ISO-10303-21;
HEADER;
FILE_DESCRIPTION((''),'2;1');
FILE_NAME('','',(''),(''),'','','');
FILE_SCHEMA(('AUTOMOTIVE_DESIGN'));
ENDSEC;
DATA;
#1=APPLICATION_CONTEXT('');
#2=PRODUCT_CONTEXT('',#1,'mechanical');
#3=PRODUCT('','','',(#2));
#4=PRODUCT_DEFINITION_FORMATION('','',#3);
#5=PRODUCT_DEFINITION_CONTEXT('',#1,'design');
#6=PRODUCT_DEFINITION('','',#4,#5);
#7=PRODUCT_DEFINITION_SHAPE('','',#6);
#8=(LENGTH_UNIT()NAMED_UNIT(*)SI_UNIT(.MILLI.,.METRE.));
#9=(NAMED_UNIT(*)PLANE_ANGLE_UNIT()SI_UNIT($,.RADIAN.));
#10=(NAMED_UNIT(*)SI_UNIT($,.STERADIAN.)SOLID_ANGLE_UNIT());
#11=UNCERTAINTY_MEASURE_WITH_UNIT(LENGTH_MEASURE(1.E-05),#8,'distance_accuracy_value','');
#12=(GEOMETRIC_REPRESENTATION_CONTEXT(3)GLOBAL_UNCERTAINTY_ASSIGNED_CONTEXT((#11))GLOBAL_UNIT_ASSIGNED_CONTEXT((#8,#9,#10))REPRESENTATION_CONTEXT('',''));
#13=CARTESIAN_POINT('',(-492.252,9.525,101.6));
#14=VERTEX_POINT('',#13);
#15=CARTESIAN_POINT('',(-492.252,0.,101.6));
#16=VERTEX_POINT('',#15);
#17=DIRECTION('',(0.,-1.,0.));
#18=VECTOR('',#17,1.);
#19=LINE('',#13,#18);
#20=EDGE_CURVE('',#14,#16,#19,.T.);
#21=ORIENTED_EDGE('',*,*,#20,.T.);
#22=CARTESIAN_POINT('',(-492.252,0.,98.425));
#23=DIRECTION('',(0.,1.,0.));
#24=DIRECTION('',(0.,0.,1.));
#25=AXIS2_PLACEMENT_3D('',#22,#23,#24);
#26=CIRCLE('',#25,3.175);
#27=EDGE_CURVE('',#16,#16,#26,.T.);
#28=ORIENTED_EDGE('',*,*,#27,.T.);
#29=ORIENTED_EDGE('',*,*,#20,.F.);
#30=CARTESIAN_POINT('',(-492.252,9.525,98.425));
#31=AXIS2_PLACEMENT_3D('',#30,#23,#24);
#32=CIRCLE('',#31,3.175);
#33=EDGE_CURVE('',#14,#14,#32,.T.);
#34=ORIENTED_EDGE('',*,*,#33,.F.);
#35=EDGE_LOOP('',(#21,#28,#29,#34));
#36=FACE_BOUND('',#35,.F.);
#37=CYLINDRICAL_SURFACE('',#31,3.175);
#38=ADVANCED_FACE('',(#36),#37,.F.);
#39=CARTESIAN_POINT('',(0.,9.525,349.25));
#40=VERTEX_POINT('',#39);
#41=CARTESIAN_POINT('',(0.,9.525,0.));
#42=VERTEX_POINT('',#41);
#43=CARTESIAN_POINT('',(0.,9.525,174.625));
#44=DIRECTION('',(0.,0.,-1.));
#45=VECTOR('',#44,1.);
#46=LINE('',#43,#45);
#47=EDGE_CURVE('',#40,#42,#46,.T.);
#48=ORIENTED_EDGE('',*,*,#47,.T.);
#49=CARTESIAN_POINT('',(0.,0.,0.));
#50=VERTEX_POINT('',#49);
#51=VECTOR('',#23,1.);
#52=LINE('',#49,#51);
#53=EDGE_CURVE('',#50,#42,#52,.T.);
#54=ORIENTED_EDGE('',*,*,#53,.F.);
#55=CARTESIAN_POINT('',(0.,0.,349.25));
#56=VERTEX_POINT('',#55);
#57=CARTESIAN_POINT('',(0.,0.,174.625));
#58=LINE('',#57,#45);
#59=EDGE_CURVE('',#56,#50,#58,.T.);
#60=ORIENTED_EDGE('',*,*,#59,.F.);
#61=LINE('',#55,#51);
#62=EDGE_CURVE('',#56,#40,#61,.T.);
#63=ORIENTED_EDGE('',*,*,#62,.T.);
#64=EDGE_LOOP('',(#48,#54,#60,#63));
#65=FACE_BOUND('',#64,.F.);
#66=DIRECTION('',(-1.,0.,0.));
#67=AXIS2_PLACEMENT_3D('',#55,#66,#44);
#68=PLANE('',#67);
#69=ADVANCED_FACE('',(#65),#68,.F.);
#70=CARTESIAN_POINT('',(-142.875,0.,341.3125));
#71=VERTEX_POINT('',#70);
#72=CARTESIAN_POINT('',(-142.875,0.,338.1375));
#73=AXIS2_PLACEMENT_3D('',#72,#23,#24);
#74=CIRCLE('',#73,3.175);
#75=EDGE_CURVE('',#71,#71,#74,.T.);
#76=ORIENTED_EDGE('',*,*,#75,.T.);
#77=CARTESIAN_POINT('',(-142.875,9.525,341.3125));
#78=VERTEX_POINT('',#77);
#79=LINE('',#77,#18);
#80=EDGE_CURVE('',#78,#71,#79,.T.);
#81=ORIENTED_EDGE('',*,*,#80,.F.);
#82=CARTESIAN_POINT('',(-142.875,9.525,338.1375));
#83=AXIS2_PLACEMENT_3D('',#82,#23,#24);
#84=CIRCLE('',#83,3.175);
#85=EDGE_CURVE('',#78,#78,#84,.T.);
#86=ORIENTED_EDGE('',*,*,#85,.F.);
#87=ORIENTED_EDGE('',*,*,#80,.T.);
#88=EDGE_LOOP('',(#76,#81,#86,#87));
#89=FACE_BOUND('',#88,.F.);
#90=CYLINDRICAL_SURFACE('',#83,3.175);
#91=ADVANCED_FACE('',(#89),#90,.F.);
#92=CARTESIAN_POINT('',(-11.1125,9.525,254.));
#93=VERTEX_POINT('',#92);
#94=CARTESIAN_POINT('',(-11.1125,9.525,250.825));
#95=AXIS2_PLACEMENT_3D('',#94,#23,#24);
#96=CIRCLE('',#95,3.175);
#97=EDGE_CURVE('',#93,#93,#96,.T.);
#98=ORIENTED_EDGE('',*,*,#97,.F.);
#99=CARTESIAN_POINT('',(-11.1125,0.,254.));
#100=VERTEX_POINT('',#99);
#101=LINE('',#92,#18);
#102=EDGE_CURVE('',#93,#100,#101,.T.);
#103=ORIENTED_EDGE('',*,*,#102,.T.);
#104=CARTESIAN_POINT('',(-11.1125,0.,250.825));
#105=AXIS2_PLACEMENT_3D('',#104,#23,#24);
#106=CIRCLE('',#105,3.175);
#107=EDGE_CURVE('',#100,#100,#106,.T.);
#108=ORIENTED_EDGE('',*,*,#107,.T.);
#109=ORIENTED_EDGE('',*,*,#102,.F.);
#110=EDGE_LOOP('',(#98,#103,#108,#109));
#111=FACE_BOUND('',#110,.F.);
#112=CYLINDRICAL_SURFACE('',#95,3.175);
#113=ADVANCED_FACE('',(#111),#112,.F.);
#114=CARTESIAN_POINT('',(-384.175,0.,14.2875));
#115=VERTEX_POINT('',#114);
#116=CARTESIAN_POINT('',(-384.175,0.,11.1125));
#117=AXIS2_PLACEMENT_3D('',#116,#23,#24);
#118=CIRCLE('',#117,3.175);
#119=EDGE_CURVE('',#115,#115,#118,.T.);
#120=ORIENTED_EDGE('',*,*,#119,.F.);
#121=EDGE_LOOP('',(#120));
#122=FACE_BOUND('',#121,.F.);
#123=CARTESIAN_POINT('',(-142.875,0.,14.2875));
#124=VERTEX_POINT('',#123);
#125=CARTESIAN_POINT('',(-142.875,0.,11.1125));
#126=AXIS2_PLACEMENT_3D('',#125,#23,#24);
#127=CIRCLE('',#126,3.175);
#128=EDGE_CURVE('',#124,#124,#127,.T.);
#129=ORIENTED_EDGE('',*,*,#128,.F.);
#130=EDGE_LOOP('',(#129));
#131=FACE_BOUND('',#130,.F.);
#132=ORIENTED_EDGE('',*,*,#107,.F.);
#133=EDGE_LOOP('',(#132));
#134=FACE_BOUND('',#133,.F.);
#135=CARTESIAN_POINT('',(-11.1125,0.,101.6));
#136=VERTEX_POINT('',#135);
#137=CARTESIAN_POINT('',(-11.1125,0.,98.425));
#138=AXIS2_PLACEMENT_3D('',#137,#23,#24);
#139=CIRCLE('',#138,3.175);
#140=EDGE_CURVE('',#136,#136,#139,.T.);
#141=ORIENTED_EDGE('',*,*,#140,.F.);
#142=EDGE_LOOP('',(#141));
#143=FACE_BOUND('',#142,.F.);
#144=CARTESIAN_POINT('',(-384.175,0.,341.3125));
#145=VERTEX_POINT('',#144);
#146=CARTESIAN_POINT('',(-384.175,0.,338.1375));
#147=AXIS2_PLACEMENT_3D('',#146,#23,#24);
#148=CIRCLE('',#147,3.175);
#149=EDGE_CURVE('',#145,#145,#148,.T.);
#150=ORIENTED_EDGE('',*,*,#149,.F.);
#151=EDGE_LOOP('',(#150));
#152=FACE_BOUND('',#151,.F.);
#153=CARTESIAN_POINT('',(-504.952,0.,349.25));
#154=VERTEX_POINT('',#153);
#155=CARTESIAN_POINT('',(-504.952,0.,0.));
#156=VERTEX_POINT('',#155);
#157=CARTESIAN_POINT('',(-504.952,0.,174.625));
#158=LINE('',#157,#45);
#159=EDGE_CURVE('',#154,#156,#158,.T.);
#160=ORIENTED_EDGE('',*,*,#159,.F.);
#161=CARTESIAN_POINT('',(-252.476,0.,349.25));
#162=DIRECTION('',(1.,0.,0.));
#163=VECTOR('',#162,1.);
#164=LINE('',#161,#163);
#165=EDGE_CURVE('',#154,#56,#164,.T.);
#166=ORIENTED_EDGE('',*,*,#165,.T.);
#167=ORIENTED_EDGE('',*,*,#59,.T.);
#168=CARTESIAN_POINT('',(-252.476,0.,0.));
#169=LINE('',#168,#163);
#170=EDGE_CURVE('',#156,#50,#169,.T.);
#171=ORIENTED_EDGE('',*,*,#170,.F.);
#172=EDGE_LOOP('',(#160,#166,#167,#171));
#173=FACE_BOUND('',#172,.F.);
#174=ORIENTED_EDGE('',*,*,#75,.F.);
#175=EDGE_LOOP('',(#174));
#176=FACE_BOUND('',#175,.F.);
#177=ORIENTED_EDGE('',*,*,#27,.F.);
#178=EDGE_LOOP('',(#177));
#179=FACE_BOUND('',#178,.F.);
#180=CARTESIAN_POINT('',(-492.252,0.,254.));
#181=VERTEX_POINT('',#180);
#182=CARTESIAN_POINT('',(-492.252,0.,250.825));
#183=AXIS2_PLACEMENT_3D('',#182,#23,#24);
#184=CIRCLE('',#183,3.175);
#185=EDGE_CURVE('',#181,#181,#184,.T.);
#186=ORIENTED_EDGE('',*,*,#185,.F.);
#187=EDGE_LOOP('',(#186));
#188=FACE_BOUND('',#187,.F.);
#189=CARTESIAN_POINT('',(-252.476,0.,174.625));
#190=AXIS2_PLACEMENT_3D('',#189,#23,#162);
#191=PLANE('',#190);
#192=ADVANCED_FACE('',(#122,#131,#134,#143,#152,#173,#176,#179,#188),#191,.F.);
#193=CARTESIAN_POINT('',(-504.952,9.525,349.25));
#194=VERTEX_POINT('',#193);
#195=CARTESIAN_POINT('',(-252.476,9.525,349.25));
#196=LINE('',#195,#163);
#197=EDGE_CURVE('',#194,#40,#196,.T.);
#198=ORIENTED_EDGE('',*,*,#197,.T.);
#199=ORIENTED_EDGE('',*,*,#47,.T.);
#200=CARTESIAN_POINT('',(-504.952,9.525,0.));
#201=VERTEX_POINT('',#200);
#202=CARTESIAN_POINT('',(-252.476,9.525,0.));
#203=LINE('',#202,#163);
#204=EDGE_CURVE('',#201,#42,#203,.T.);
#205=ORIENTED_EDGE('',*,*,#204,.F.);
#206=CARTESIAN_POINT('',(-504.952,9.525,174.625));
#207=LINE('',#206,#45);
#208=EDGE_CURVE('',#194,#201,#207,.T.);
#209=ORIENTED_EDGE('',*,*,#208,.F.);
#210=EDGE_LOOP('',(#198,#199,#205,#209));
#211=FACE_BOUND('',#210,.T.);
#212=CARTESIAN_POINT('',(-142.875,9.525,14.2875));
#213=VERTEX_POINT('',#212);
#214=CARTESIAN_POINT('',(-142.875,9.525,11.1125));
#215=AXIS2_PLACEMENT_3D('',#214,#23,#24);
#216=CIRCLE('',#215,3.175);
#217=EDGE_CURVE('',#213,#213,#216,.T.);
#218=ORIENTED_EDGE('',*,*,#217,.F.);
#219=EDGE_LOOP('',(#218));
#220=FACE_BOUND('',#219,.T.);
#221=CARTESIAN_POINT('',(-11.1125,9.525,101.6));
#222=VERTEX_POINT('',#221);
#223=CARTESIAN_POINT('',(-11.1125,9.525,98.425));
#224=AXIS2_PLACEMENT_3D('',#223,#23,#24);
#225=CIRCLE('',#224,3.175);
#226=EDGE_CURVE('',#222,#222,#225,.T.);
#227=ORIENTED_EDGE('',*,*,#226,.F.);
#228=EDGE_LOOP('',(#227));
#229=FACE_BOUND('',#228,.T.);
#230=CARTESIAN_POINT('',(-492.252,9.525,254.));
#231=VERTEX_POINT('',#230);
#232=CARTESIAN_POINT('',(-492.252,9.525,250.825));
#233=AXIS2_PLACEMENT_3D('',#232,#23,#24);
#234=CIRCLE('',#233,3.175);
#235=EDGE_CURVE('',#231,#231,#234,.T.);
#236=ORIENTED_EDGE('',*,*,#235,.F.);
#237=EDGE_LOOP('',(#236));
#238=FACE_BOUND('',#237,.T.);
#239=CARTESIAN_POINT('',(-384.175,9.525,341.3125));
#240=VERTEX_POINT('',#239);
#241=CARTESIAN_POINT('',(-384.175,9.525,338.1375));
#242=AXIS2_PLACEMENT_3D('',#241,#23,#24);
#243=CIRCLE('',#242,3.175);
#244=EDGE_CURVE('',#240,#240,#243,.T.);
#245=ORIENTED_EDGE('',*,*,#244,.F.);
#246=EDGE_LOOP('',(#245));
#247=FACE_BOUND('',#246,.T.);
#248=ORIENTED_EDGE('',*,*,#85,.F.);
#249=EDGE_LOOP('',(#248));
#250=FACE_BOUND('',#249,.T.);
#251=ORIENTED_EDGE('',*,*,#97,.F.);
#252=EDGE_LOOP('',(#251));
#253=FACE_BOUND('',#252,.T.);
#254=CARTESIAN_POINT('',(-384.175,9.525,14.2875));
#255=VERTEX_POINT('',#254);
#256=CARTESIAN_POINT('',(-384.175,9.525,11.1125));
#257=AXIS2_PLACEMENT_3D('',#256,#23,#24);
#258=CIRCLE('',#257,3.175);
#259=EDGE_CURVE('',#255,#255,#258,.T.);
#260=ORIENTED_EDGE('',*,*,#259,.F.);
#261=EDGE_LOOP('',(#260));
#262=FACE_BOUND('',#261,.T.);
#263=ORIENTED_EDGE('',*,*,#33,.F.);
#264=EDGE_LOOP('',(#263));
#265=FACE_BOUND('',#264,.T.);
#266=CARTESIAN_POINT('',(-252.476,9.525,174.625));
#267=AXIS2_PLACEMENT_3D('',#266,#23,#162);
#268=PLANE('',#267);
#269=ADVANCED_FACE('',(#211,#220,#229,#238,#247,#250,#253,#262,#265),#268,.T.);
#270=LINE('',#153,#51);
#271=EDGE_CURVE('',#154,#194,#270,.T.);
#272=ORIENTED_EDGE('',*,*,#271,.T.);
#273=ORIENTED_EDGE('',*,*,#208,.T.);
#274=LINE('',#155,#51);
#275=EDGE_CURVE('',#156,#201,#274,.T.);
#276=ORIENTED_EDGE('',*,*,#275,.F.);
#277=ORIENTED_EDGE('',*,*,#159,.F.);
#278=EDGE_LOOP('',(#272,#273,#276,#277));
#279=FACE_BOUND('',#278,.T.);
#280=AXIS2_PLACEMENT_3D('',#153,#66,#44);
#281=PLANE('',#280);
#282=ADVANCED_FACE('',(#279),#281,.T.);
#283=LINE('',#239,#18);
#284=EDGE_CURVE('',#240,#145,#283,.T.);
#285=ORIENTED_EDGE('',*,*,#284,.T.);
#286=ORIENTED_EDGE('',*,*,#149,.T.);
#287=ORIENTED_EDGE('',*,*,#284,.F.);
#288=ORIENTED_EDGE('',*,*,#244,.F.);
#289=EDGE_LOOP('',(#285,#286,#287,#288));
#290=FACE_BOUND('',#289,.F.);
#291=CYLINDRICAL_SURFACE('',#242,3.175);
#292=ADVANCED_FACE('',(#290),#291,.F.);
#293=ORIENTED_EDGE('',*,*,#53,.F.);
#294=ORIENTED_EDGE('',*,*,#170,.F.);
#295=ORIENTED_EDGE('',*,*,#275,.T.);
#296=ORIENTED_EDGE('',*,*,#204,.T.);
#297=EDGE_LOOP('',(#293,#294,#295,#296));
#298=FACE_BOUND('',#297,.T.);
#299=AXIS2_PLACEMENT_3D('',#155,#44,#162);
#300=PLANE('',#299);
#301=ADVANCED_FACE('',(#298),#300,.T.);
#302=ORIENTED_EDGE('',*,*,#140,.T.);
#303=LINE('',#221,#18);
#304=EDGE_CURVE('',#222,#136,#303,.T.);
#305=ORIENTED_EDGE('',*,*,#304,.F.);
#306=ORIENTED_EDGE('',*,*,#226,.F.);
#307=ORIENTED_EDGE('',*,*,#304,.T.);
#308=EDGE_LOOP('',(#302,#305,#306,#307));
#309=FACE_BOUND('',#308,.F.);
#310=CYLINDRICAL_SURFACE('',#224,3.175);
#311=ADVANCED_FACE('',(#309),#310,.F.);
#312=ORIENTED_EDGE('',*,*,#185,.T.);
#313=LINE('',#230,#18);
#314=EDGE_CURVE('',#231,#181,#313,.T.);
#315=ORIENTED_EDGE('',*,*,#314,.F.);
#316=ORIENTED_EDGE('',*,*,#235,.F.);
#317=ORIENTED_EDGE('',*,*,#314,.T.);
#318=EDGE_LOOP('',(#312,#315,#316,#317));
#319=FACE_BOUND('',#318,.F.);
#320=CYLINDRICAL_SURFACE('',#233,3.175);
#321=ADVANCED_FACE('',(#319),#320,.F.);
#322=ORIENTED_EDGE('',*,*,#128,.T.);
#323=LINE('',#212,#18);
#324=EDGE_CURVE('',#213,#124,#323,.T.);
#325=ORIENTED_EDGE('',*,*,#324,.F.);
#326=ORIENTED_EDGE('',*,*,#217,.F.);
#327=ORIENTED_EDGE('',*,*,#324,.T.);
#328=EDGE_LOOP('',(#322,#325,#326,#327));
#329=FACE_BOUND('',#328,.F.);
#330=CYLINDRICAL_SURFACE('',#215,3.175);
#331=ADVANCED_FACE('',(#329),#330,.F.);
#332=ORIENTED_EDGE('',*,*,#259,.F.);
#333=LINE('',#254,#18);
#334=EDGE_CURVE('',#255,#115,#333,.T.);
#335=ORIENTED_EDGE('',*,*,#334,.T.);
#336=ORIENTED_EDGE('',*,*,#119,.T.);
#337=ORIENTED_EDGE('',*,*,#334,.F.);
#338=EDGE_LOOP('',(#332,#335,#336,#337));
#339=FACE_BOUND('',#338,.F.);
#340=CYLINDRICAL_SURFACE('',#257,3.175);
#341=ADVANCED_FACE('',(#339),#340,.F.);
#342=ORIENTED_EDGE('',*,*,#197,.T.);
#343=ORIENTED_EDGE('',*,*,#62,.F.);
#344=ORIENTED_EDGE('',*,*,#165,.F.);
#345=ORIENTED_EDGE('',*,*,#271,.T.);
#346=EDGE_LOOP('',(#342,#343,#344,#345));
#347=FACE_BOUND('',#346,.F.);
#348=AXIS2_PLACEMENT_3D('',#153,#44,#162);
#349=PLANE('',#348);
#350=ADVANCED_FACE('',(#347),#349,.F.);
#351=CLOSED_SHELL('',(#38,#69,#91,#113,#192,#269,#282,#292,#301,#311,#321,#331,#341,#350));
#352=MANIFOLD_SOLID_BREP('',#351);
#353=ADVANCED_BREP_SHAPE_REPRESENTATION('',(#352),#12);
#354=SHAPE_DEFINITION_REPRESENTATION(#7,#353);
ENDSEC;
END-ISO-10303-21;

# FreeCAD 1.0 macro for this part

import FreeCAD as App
import Part
import Sketcher
from FreeCAD import Vector
Q = App.Units.Quantity


def add_polygon(sketch, points):
    """Adds a closed chain of lines whose ends are joined by coincident constraints."""
    first, n = sketch.GeometryCount, len(points)
    for a, b in zip(points, points[1:] + points[:1]):
        sketch.addGeometry(Part.LineSegment(App.Vector(*a, 0), App.Vector(*b, 0)), False)
    for i in range(n):
        sketch.addConstraint(Sketcher.Constraint("Coincident", first + i, 2, first + (i + 1) % n, 1))

doc = App.newDocument("Part")
body = doc.addObject("PartDesign::Body", "Body")

# Sketch on XZ plane
sketch1 = body.newObject("Sketcher::SketchObject", "Sketch")
sketch1.AttachmentSupport = (doc.getObject("XZ_Plane"), [""])
sketch1.MapMode = "FlatFace"
add_polygon(sketch1, [(-505, 0), (-505, 349), (0, 349), (0, 0)])  # lines 0-3
sketch1.addConstraint([
    Sketcher.Constraint("Vertical", 0),
    Sketcher.Constraint("Horizontal", 1),
    Sketcher.Constraint("Vertical", 2),
    Sketcher.Constraint("Horizontal", 3),
    Sketcher.Constraint("Coincident", 2, 2, -1, 1),
    Sketcher.Constraint("DistanceX", 1, 1, 1, 2, Q("19.88 in")),
    Sketcher.Constraint("DistanceY", 0, 1, 0, 2, Q("13.75 in")),
])
pad1 = body.newObject("PartDesign::Pad", "Pad")
pad1.Profile = sketch1
pad1.Length = Q("0.375 in")
pad1.Reversed = True

# Sketch on XZ plane
sketch2 = body.newObject("Sketcher::SketchObject", "Sketch001")
sketch2.AttachmentSupport = (doc.getObject("XZ_Plane"), [""])
sketch2.MapMode = "FlatFace"
sketch2.AttachmentOffset = App.Placement(Vector(0, 0, -0.375 * 25.4), App.Rotation())
sketch2.addGeometry([
    Part.Circle(Vector(-384.2, 11.1, 0), Vector(0, 0, 1), 3.2),  # 0
    Part.Circle(Vector(-142.9, 11.1, 0), Vector(0, 0, 1), 3.2),  # 1
    Part.Circle(Vector(-11.1, 98.4, 0), Vector(0, 0, 1), 3.2),  # 2
    Part.Circle(Vector(-11.1, 250.8, 0), Vector(0, 0, 1), 3.2),  # 3
    Part.Circle(Vector(-142.9, 338.1, 0), Vector(0, 0, 1), 3.2),  # 4
    Part.Circle(Vector(-384.2, 338.1, 0), Vector(0, 0, 1), 3.2),  # 5
    Part.Circle(Vector(-492.3, 250.8, 0), Vector(0, 0, 1), 3.2),  # 6
    Part.Circle(Vector(-492.3, 98.4, 0), Vector(0, 0, 1), 3.2),  # 7
], False)
sketch2.addConstraint([
    Sketcher.Constraint("Equal", 0, 1),
    Sketcher.Constraint("Equal", 1, 2),
    Sketcher.Constraint("Equal", 2, 3),
    Sketcher.Constraint("Equal", 3, 4),
    Sketcher.Constraint("Equal", 4, 5),
    Sketcher.Constraint("Equal", 5, 6),
    Sketcher.Constraint("Equal", 6, 7),
    Sketcher.Constraint("Horizontal", 0, 3, 1, 3),
    Sketcher.Constraint("Horizontal", 4, 3, 5, 3),
    Sketcher.Constraint("Horizontal", 3, 3, 6, 3),
    Sketcher.Constraint("Horizontal", 2, 3, 7, 3),
    Sketcher.Constraint("Vertical", 2, 3, 3, 3),
    Sketcher.Constraint("Vertical", 1, 3, 4, 3),
    Sketcher.Constraint("Vertical", 0, 3, 5, 3),
    Sketcher.Constraint("Vertical", 6, 3, 7, 3),
    Sketcher.Constraint("Diameter", 0, Q("0.25 in")),
    Sketcher.Constraint("DistanceY", 2, 3, 3, 3, Q("6 in")),
    Sketcher.Constraint("DistanceX", 0, 3, 1, 3, Q("9.5 in")),
    Sketcher.Constraint("DistanceX", 6, 3, -1, 1, Q("19.38 in")),
    Sketcher.Constraint("DistanceX", 0, 3, -1, 1, Q("15.125 in")),
    Sketcher.Constraint("DistanceY", -1, 1, 0, 3, Q("0.4375 in")),
    Sketcher.Constraint("DistanceX", 2, 3, -1, 1, Q("0.4375 in")),
    Sketcher.Constraint("DistanceY", -1, 1, 2, 3, Q("3.875 in")),
    Sketcher.Constraint("DistanceY", -1, 1, 4, 3, Q("13.3125 in")),
])
pocket1 = body.newObject("PartDesign::Pocket", "Pocket")
pocket1.Profile = sketch2
pocket1.Length = Q("0.5 in")
pocket1.Reversed = True

doc.recompute()
